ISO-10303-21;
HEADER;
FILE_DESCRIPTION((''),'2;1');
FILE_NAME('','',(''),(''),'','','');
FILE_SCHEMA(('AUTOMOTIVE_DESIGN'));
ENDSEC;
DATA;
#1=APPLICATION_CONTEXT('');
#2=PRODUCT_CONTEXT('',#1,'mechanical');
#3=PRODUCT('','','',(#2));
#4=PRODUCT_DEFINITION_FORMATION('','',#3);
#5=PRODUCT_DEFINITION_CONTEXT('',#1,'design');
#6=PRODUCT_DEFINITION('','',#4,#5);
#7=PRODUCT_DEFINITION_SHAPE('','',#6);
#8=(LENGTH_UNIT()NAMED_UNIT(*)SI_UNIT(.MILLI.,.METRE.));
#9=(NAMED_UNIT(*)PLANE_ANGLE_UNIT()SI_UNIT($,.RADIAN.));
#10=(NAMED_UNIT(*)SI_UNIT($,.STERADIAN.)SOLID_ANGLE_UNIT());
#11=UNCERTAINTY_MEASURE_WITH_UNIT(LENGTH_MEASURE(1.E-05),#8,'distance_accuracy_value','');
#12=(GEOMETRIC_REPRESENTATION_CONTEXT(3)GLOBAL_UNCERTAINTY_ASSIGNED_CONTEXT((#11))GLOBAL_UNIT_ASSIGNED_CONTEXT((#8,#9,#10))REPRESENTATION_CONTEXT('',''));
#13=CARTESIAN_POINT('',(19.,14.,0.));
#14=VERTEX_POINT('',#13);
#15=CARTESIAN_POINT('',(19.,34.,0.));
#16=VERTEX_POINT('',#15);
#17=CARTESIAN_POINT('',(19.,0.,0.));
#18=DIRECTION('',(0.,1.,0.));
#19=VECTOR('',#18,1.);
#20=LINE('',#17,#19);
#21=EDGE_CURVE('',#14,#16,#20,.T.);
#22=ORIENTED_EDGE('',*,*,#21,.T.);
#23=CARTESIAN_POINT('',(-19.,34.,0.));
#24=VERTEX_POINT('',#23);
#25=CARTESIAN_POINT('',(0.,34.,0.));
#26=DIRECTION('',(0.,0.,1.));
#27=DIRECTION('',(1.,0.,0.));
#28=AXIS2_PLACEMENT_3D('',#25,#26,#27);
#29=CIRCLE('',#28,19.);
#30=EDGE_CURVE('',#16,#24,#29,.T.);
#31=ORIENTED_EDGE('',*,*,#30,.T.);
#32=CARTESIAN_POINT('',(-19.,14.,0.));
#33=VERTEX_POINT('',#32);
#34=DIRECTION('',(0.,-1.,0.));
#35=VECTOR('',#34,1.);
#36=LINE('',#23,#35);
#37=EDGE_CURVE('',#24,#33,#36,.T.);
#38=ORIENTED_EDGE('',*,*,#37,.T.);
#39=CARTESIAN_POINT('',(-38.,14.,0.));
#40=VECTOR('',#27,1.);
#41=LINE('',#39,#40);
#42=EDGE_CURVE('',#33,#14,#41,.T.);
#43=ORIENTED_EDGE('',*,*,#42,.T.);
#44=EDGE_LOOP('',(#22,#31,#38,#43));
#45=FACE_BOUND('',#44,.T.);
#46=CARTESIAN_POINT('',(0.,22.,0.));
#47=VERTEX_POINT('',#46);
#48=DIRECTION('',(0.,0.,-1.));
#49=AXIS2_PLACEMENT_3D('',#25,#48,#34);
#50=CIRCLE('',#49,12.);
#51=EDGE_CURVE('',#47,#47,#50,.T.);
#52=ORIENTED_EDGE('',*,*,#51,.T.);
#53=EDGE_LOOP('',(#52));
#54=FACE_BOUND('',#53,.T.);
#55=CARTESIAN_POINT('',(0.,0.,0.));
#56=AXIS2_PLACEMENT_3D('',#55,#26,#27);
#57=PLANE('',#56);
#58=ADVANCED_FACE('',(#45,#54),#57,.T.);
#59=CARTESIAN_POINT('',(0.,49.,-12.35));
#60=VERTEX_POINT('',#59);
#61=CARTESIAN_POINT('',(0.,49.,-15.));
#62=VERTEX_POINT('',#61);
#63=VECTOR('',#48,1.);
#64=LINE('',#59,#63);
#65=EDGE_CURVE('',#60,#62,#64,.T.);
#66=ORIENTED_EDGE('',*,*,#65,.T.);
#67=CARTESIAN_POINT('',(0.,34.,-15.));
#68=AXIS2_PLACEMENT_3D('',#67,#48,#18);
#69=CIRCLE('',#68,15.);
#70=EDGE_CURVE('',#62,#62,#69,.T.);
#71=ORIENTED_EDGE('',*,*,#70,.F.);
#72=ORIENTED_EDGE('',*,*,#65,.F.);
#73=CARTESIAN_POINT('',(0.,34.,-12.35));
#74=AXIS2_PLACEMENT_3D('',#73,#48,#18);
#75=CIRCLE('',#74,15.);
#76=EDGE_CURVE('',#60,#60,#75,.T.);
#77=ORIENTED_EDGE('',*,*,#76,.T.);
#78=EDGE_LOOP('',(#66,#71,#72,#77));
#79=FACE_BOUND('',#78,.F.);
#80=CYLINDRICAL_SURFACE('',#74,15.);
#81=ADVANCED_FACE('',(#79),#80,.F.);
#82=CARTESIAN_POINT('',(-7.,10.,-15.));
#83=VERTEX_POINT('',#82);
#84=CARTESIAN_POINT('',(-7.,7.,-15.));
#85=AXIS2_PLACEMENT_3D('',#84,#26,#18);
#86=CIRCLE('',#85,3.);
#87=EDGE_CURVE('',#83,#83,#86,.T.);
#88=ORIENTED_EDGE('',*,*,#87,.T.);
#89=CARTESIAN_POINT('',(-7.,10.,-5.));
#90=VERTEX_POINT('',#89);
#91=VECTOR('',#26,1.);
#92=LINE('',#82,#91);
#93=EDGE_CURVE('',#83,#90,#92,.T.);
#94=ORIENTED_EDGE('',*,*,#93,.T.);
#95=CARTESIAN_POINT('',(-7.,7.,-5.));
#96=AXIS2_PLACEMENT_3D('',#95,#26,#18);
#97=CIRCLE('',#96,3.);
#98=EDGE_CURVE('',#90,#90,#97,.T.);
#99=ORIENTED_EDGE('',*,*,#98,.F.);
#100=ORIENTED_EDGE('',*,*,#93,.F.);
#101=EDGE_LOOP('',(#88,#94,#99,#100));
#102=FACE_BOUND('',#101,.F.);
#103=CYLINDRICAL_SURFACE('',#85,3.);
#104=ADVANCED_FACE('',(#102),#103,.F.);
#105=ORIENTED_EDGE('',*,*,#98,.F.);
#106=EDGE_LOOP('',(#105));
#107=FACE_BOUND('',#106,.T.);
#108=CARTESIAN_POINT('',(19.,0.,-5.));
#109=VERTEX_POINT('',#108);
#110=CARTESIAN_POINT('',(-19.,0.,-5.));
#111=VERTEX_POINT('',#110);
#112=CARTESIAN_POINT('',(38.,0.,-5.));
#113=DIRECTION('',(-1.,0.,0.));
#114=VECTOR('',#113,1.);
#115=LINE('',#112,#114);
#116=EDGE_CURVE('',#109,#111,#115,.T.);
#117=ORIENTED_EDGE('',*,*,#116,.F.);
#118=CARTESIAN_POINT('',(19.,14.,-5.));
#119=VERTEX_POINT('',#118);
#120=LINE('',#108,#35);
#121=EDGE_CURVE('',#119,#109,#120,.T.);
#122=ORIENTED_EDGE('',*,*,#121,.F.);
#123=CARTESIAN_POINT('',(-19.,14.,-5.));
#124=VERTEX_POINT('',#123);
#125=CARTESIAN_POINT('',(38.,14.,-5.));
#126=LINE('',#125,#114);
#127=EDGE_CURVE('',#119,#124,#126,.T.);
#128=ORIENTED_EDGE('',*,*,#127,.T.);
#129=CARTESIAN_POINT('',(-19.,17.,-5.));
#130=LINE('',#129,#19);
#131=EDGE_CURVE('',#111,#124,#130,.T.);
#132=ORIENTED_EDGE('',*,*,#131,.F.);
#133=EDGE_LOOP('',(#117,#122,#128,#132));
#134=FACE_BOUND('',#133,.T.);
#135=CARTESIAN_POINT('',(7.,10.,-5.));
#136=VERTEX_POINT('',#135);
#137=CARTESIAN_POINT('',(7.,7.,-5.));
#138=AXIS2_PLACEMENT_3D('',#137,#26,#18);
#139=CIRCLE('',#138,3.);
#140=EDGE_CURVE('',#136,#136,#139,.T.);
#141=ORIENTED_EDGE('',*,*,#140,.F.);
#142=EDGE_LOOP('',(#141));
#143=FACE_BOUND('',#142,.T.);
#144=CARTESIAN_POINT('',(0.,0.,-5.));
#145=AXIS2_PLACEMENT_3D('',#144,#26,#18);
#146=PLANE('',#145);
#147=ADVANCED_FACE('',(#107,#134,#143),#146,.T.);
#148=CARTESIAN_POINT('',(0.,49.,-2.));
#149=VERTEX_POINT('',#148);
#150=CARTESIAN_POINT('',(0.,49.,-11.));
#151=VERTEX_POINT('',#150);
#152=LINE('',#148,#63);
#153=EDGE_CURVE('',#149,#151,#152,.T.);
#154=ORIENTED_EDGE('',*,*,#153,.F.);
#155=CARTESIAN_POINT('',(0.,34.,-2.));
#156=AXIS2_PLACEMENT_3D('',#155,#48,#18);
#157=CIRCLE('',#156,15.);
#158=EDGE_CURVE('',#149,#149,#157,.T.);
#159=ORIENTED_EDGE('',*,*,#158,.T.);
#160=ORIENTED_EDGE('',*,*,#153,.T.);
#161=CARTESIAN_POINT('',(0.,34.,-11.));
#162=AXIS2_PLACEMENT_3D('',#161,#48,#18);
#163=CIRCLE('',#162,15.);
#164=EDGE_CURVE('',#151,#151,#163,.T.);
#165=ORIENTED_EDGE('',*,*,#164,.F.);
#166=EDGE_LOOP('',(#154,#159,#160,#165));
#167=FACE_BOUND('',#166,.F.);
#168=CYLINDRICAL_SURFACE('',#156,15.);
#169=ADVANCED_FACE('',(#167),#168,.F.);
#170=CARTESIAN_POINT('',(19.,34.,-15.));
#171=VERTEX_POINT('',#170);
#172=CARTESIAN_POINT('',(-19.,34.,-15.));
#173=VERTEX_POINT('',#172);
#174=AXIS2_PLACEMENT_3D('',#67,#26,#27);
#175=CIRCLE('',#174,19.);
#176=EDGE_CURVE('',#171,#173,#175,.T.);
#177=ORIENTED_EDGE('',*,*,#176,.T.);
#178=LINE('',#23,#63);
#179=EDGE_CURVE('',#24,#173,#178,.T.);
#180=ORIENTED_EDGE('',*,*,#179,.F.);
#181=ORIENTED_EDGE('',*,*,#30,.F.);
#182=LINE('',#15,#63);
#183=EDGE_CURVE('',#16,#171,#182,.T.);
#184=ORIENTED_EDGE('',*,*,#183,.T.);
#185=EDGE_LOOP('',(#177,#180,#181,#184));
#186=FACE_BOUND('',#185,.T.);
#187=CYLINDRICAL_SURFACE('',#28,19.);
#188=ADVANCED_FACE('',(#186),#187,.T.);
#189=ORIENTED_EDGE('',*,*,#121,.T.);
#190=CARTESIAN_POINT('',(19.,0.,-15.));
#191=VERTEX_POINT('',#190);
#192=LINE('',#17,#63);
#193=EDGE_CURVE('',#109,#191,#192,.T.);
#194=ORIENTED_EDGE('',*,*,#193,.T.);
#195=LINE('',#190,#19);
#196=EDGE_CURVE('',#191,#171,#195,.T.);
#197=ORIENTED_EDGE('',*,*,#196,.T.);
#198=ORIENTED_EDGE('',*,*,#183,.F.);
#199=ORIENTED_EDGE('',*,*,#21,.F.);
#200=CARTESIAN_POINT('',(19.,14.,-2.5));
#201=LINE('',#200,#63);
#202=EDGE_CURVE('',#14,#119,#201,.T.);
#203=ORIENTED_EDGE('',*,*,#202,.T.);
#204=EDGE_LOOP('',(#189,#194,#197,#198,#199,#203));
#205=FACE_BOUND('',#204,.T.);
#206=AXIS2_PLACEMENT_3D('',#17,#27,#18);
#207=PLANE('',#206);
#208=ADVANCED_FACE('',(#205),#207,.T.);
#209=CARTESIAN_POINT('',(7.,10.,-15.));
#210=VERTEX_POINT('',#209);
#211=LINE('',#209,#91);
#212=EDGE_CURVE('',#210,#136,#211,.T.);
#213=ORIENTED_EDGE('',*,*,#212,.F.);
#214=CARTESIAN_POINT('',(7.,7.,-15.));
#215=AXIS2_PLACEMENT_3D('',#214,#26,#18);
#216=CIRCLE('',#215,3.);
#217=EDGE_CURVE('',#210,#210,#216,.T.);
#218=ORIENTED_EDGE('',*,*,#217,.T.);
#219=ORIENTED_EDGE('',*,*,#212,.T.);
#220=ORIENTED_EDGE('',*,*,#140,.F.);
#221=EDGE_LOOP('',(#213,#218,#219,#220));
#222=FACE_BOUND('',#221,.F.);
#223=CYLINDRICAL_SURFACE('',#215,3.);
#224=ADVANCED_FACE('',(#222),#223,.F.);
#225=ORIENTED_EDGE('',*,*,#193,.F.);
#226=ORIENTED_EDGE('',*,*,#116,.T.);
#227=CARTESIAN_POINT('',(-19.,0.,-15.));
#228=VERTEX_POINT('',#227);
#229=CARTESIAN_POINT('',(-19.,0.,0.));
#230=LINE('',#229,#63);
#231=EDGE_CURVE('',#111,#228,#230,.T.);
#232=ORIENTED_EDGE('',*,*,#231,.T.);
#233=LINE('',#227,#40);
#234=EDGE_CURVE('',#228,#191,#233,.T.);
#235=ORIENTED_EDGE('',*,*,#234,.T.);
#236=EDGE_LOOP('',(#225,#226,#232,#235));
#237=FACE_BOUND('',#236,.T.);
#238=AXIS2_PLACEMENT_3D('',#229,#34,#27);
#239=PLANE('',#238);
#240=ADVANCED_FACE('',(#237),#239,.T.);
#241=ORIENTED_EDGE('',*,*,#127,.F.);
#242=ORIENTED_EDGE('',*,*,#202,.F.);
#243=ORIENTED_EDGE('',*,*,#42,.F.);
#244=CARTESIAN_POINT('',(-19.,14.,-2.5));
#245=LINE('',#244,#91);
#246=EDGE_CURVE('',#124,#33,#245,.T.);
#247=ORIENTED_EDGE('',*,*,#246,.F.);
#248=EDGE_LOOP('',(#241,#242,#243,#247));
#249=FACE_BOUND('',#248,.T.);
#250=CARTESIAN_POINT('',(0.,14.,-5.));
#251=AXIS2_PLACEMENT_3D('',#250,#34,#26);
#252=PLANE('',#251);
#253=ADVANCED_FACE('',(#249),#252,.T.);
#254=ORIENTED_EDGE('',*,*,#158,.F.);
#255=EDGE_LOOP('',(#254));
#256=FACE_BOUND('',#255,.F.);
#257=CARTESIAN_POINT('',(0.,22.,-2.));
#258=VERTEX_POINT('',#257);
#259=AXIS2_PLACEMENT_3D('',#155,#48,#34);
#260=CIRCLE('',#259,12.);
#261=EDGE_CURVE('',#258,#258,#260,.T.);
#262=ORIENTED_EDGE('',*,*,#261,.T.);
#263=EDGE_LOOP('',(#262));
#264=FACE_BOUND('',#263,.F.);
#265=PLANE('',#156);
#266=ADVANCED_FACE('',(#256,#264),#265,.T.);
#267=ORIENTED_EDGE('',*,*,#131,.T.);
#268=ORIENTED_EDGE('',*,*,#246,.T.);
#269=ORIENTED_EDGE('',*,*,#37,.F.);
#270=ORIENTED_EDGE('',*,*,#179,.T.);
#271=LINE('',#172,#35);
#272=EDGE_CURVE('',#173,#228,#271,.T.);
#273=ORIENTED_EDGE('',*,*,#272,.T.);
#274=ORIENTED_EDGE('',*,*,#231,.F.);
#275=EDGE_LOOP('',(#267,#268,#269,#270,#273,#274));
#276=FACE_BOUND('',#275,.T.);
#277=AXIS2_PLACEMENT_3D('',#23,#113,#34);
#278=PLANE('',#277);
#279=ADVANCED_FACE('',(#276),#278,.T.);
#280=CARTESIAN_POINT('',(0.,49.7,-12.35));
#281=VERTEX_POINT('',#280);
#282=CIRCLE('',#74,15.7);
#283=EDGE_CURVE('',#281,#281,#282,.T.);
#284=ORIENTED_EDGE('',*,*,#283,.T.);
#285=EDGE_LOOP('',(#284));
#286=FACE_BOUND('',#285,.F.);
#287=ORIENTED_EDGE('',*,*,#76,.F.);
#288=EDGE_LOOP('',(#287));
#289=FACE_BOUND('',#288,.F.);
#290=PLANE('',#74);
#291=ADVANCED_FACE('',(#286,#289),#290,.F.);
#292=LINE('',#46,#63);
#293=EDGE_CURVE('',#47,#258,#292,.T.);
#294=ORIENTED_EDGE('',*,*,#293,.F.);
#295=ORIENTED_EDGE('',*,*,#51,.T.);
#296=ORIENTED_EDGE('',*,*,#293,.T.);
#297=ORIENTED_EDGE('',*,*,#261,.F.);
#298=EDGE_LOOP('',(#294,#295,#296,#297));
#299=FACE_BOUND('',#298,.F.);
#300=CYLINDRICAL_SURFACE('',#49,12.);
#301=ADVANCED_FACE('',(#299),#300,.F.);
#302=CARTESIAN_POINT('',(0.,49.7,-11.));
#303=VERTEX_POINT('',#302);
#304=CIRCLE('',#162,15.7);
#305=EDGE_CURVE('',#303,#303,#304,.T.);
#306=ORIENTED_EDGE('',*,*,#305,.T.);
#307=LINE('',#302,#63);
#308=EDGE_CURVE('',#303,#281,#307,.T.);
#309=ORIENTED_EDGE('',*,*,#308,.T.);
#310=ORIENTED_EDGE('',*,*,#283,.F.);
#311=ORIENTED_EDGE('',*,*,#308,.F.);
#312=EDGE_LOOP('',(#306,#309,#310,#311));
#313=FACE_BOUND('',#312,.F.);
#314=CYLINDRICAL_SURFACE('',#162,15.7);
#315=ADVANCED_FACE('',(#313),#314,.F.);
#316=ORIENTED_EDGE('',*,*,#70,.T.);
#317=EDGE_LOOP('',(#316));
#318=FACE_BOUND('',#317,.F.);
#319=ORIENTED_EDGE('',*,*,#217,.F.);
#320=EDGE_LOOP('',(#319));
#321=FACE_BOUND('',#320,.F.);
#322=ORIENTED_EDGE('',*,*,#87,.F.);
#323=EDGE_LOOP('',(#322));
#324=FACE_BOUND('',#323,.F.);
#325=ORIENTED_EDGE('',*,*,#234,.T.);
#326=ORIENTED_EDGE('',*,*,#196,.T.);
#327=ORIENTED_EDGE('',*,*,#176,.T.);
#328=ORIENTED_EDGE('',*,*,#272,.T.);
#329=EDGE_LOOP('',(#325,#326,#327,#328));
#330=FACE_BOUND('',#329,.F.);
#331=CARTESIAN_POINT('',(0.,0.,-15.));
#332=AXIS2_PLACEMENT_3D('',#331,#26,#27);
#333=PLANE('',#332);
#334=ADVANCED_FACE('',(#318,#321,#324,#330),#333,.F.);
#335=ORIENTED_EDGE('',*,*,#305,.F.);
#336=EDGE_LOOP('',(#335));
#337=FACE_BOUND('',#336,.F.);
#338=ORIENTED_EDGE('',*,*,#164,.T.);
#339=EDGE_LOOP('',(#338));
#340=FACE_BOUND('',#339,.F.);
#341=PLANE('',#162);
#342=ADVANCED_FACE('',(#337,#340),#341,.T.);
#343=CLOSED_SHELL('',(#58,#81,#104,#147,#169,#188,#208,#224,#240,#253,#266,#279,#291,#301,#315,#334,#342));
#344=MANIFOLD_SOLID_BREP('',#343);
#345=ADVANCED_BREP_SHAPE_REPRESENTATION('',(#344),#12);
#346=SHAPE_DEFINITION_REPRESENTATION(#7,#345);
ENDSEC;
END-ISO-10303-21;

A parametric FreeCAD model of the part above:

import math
import FreeCAD as App
import Part
import Sketcher
from FreeCAD import Vector
Q = App.Units.Quantity

doc = App.newDocument("Part")
body = doc.addObject("PartDesign::Body", "Body")

# Sketch on XY plane
sketch1 = doc.addObject("Sketcher::SketchObject", "Sketch")
body.addObject(sketch1)
sketch1.AttachmentSupport = (doc.XY_Plane, [""])
sketch1.MapMode = "FlatFace"
sketch1.addGeometry([
    Part.ArcOfCircle(Part.Circle(Vector(0, 34, 0), Vector(0, 0, 1), 19), math.radians(0), math.radians(180)),
    Part.LineSegment(Vector(-19, 34, 0), Vector(-19, 0, 0)),
    Part.LineSegment(Vector(-19, 0, 0), Vector(19, 0, 0)),
    Part.LineSegment(Vector(19, 0, 0), Vector(19, 34, 0)),
], False)
sketch1.addConstraint([
    Sketcher.Constraint("Tangent", 0, 2, 1, 1),
    Sketcher.Constraint("Coincident", 1, 2, 2, 1),
    Sketcher.Constraint("Coincident", 2, 2, 3, 1),
    Sketcher.Constraint("Tangent", 3, 2, 0, 1),
    Sketcher.Constraint("Vertical", 1),
    Sketcher.Constraint("Horizontal", 2),
    Sketcher.Constraint("Vertical", 3),
    Sketcher.Constraint("Symmetric", 1, 2, 2, 2, -1, 1),
    Sketcher.Constraint("Radius", 0, Q("19 mm")),
    Sketcher.Constraint("DistanceY", 1, 2, 1, 1, Q("34 mm")),
])
pad1 = doc.addObject("PartDesign::Pad", "Pad")
body.addObject(pad1)
pad1.Profile = sketch1
pad1.Length = 15
pad1.Reversed = True

# Sketch on YZ plane
sketch2 = doc.addObject("Sketcher::SketchObject", "Sketch001")
body.addObject(sketch2)
sketch2.AttachmentSupport = (doc.YZ_Plane, [""])
sketch2.MapMode = "FlatFace"
sketch2.addGeometry([
    Part.LineSegment(Vector(14, -5, 0), Vector(14, 0, 0)),
    Part.LineSegment(Vector(14, 0, 0), Vector(0, 0, 0)),
    Part.LineSegment(Vector(0, 0, 0), Vector(0, -5, 0)),
    Part.LineSegment(Vector(0, -5, 0), Vector(14, -5, 0)),
], False)
sketch2.addConstraint([
    Sketcher.Constraint("Coincident", 0, 2, 1, 1),
    Sketcher.Constraint("Coincident", 1, 2, 2, 1),
    Sketcher.Constraint("Coincident", 2, 2, 3, 1),
    Sketcher.Constraint("Coincident", 3, 2, 0, 1),
    Sketcher.Constraint("Vertical", 0),
    Sketcher.Constraint("Horizontal", 1),
    Sketcher.Constraint("Vertical", 2),
    Sketcher.Constraint("Horizontal", 3),
    Sketcher.Constraint("Coincident", 1, 2, -1, 1),
    Sketcher.Constraint("DistanceX", 1, 2, 1, 1, Q("14 mm")),
    Sketcher.Constraint("DistanceY", 0, 1, 0, 2, Q("5 mm")),
])
pocket1 = doc.addObject("PartDesign::Pocket", "Pocket")
body.addObject(pocket1)
pocket1.Profile = sketch2
pocket1.Length = 76
pocket1.Midplane = True

# Sketch on YZ plane
sketch3 = doc.addObject("Sketcher::SketchObject", "Sketch002")
body.addObject(sketch3)
sketch3.AttachmentSupport = (doc.YZ_Plane, [""])
sketch3.MapMode = "FlatFace"
sketch3.addGeometry([
    Part.LineSegment(Vector(34, -2, 0), Vector(34, -15, 0)),  # 0
    Part.LineSegment(Vector(34, -15, 0), Vector(49, -15, 0)),  # 1
    Part.LineSegment(Vector(49, -15, 0), Vector(49, -12.3, 0)),  # 2
    Part.LineSegment(Vector(49, -12.3, 0), Vector(49.7, -12.3, 0)),  # 3
    Part.LineSegment(Vector(49.7, -12.3, 0), Vector(49.7, -11, 0)),  # 4
    Part.LineSegment(Vector(49.7, -11, 0), Vector(49, -11, 0)),  # 5
    Part.LineSegment(Vector(49, -11, 0), Vector(49, -2, 0)),  # 6
    Part.LineSegment(Vector(49, -2, 0), Vector(34, -2, 0)),  # 7
], False)
sketch3.addGeometry(Part.LineSegment(Vector(34, -2, 0), Vector(34, -15, 0)), True)  # axis
sketch3.addConstraint([
    Sketcher.Constraint("Coincident", 0, 2, 1, 1),
    Sketcher.Constraint("Coincident", 1, 2, 2, 1),
    Sketcher.Constraint("Coincident", 2, 2, 3, 1),
    Sketcher.Constraint("Coincident", 3, 2, 4, 1),
    Sketcher.Constraint("Coincident", 4, 2, 5, 1),
    Sketcher.Constraint("Coincident", 5, 2, 6, 1),
    Sketcher.Constraint("Coincident", 6, 2, 7, 1),
    Sketcher.Constraint("Coincident", 7, 2, 0, 1),
    Sketcher.Constraint("Vertical", 0),
    Sketcher.Constraint("Horizontal", 1),
    Sketcher.Constraint("Vertical", 2),
    Sketcher.Constraint("Horizontal", 3),
    Sketcher.Constraint("Vertical", 4),
    Sketcher.Constraint("Horizontal", 5),
    Sketcher.Constraint("Vertical", 6),
    Sketcher.Constraint("Horizontal", 7),
    Sketcher.Constraint("Vertical", 8),
    Sketcher.Constraint("Coincident", 8, 1, 7, 2),
    Sketcher.Constraint("Horizontal", 1, 2, 8, 2),
    Sketcher.Constraint("Vertical", 2, 2, 5, 2),
    Sketcher.Constraint("DistanceX", 1, 1, 1, 2, Q("15 mm")),
    Sketcher.Constraint("DistanceY", 0, 2, 0, 1, Q("13 mm")),
    Sketcher.Constraint("DistanceY", 6, 1, 6, 2, Q("9 mm")),
    Sketcher.Constraint("DistanceX", 3, 1, 3, 2, Q("0.7 mm")),
    Sketcher.Constraint("DistanceX", -1, 1, 0, 2, Q("34 mm")),
    Sketcher.Constraint("DistanceY", 0, 2, -1, 1, Q("15 mm")),
    Sketcher.Constraint("DistanceY", 2, 1, 2, 2, Q("2.65 mm")),
])
groove = doc.addObject("PartDesign::Groove", "Groove")
body.addObject(groove)
groove.Profile = sketch3
groove.ReferenceAxis = (sketch3, ["Axis0"])
groove.Angle = 360

# Sketch on XY plane
sketch4 = doc.addObject("Sketcher::SketchObject", "Sketch003")
body.addObject(sketch4)
sketch4.AttachmentSupport = (doc.XY_Plane, [""])
sketch4.MapMode = "FlatFace"
sketch4.addGeometry(Part.Circle(Vector(0, 34, 0), Vector(0, 0, 1), 12), False)
sketch4.addConstraint([
    Sketcher.Constraint("PointOnObject", 0, 3, -2),
    Sketcher.Constraint("Diameter", 0, Q("24 mm")),
    Sketcher.Constraint("DistanceY", -1, 1, 0, 3, Q("34 mm")),
])
doc.recompute()
hole = doc.addObject("PartDesign::Hole", "Hole")
body.addObject(hole)
hole.Profile = sketch4
hole.ThreadType = "None"
hole.Diameter = 24
hole.DepthType = "Dimension"
hole.Depth = 15
hole.DrillPoint = "Flat"

# Sketch on XY plane
sketch5 = doc.addObject("Sketcher::SketchObject", "Sketch004")
body.addObject(sketch5)
sketch5.AttachmentSupport = (doc.XY_Plane, [""])
sketch5.MapMode = "FlatFace"
sketch5.AttachmentOffset = App.Placement(Vector(0, 0, -15), App.Rotation())
sketch5.addGeometry(Part.Circle(Vector(-7, 7, 0), Vector(0, 0, 1), 3), False)
sketch5.addConstraint([
    Sketcher.Constraint("Diameter", 0, Q("6 mm")),
    Sketcher.Constraint("DistanceX", 0, 3, -1, 1, Q("7 mm")),
    Sketcher.Constraint("DistanceY", -1, 1, 0, 3, Q("7 mm")),
])
doc.recompute()
hole2 = doc.addObject("PartDesign::Hole", "Hole001")
body.addObject(hole2)
hole2.Profile = sketch5
hole2.ThreadType = "None"
hole2.Diameter = 6
hole2.DepthType = "Dimension"
hole2.Depth = 15
hole2.DrillPoint = "Flat"
hole2.Reversed = True
doc.recompute()

linearpattern = doc.addObject("PartDesign::LinearPattern", "LinearPattern")
body.addObject(linearpattern)
linearpattern.Originals = [hole2]
linearpattern.Direction = (doc.X_Axis, [""])
linearpattern.Mode = "offset"
linearpattern.Offset = 14
linearpattern.Occurrences = 2
body.Tip = linearpattern

doc.recompute()
